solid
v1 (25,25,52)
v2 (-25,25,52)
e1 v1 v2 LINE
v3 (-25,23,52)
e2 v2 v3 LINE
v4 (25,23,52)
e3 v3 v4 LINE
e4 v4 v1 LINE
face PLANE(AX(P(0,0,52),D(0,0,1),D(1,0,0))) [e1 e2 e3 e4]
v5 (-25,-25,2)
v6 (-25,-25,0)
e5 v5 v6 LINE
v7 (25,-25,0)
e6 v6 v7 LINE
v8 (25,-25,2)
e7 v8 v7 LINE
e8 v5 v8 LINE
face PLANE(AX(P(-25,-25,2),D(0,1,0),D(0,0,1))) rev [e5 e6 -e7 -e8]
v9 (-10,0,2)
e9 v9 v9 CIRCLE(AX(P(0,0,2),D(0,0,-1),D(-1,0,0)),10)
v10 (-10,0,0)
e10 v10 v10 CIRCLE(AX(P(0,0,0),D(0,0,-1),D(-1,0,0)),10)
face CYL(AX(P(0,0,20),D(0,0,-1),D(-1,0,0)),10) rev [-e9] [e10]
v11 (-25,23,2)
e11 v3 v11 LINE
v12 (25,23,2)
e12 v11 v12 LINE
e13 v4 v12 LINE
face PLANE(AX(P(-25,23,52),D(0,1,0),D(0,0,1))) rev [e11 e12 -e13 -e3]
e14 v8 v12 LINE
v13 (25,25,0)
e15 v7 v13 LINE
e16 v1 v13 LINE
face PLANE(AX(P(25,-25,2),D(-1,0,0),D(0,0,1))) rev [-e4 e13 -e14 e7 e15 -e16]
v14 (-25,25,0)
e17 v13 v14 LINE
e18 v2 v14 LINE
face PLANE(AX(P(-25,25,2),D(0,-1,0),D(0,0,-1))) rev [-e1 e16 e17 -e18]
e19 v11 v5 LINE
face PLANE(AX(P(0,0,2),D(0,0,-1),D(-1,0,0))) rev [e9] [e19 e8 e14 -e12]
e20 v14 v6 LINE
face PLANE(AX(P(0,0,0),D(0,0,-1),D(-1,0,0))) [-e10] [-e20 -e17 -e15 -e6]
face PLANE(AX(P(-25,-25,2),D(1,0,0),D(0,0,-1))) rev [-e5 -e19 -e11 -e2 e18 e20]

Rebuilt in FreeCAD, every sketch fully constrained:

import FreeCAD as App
import Part
import Sketcher
from FreeCAD import Vector


def add_polygon(sketch, points):
    """Adds a closed chain of lines whose ends are joined by coincident constraints."""
    first, n = sketch.GeometryCount, len(points)
    for a, b in zip(points, points[1:] + points[:1]):
        sketch.addGeometry(Part.LineSegment(App.Vector(*a, 0), App.Vector(*b, 0)), False)
    for i in range(n):
        sketch.addConstraint(Sketcher.Constraint("Coincident", first + i, 2, first + (i + 1) % n, 1))

doc = App.newDocument("Part")
body = doc.addObject("PartDesign::Body", "Body")

sketch1 = doc.addObject("Sketcher::SketchObject", "Sketch")
body.addObject(sketch1)
sketch1.AttachmentSupport = (doc.XY_Plane, [""])
sketch1.MapMode = "FlatFace"
add_polygon(sketch1, [(-25, 25), (-25, -25), (25, -25), (25, 25)])
sketch1.addConstraint(Sketcher.Constraint("Vertical", 0))
sketch1.addConstraint(Sketcher.Constraint("Horizontal", 1))
sketch1.addConstraint(Sketcher.Constraint("Vertical", 2))
sketch1.addConstraint(Sketcher.Constraint("Horizontal", 3))
sketch1.addConstraint(Sketcher.Constraint("Symmetric", 0, 2, 2, 2, -1, 1))
sketch1.addConstraint(Sketcher.Constraint("Equal", 3, 0))
sketch1.addConstraint(Sketcher.Constraint("DistanceX", 1, 1, 1, 2, 50.0))
pad1 = doc.addObject("PartDesign::Pad", "Pad")
body.addObject(pad1)
pad1.Profile = sketch1
pad1.Length = 2

sketch2 = doc.addObject("Sketcher::SketchObject", "Sketch001")
body.addObject(sketch2)
sketch2.AttachmentSupport = (doc.XY_Plane, [""])
sketch2.MapMode = "FlatFace"
sketch2.AttachmentOffset = App.Placement(Vector(0, 0, 2), App.Rotation())
add_polygon(sketch2, [(-25, 25), (-25, 23), (25, 23), (25, 25)])
sketch2.addConstraint(Sketcher.Constraint("Vertical", 0))
sketch2.addConstraint(Sketcher.Constraint("Horizontal", 1))
sketch2.addConstraint(Sketcher.Constraint("Vertical", 2))
sketch2.addConstraint(Sketcher.Constraint("Horizontal", 3))
sketch2.addConstraint(Sketcher.Constraint("DistanceX", 1, 1, 1, 2, 50.0))
sketch2.addConstraint(Sketcher.Constraint("DistanceY", 0, 2, 0, 1, 2.0))
sketch2.addConstraint(Sketcher.Constraint("DistanceX", 0, 2, -1, 1, 25.0))
sketch2.addConstraint(Sketcher.Constraint("DistanceY", -1, 1, 0, 2, 23.0))
pad2 = doc.addObject("PartDesign::Pad", "Pad001")
body.addObject(pad2)
pad2.Profile = sketch2
pad2.Length = 50

sketch3 = doc.addObject("Sketcher::SketchObject", "Sketch002")
body.addObject(sketch3)
sketch3.AttachmentSupport = (doc.XY_Plane, [""])
sketch3.MapMode = "FlatFace"
sketch3.addGeometry(Part.Circle(Vector(0, 0, 0), Vector(0, 0, 1), 10), False)
sketch3.addConstraint(Sketcher.Constraint("Coincident", 0, 3, -1, 1))
sketch3.addConstraint(Sketcher.Constraint("Diameter", 0, 20.0))
pocket1 = doc.addObject("PartDesign::Pocket", "Pocket")
body.addObject(pocket1)
pocket1.Profile = sketch3
pocket1.Length = 20
pocket1.Reversed = True

doc.recompute()
